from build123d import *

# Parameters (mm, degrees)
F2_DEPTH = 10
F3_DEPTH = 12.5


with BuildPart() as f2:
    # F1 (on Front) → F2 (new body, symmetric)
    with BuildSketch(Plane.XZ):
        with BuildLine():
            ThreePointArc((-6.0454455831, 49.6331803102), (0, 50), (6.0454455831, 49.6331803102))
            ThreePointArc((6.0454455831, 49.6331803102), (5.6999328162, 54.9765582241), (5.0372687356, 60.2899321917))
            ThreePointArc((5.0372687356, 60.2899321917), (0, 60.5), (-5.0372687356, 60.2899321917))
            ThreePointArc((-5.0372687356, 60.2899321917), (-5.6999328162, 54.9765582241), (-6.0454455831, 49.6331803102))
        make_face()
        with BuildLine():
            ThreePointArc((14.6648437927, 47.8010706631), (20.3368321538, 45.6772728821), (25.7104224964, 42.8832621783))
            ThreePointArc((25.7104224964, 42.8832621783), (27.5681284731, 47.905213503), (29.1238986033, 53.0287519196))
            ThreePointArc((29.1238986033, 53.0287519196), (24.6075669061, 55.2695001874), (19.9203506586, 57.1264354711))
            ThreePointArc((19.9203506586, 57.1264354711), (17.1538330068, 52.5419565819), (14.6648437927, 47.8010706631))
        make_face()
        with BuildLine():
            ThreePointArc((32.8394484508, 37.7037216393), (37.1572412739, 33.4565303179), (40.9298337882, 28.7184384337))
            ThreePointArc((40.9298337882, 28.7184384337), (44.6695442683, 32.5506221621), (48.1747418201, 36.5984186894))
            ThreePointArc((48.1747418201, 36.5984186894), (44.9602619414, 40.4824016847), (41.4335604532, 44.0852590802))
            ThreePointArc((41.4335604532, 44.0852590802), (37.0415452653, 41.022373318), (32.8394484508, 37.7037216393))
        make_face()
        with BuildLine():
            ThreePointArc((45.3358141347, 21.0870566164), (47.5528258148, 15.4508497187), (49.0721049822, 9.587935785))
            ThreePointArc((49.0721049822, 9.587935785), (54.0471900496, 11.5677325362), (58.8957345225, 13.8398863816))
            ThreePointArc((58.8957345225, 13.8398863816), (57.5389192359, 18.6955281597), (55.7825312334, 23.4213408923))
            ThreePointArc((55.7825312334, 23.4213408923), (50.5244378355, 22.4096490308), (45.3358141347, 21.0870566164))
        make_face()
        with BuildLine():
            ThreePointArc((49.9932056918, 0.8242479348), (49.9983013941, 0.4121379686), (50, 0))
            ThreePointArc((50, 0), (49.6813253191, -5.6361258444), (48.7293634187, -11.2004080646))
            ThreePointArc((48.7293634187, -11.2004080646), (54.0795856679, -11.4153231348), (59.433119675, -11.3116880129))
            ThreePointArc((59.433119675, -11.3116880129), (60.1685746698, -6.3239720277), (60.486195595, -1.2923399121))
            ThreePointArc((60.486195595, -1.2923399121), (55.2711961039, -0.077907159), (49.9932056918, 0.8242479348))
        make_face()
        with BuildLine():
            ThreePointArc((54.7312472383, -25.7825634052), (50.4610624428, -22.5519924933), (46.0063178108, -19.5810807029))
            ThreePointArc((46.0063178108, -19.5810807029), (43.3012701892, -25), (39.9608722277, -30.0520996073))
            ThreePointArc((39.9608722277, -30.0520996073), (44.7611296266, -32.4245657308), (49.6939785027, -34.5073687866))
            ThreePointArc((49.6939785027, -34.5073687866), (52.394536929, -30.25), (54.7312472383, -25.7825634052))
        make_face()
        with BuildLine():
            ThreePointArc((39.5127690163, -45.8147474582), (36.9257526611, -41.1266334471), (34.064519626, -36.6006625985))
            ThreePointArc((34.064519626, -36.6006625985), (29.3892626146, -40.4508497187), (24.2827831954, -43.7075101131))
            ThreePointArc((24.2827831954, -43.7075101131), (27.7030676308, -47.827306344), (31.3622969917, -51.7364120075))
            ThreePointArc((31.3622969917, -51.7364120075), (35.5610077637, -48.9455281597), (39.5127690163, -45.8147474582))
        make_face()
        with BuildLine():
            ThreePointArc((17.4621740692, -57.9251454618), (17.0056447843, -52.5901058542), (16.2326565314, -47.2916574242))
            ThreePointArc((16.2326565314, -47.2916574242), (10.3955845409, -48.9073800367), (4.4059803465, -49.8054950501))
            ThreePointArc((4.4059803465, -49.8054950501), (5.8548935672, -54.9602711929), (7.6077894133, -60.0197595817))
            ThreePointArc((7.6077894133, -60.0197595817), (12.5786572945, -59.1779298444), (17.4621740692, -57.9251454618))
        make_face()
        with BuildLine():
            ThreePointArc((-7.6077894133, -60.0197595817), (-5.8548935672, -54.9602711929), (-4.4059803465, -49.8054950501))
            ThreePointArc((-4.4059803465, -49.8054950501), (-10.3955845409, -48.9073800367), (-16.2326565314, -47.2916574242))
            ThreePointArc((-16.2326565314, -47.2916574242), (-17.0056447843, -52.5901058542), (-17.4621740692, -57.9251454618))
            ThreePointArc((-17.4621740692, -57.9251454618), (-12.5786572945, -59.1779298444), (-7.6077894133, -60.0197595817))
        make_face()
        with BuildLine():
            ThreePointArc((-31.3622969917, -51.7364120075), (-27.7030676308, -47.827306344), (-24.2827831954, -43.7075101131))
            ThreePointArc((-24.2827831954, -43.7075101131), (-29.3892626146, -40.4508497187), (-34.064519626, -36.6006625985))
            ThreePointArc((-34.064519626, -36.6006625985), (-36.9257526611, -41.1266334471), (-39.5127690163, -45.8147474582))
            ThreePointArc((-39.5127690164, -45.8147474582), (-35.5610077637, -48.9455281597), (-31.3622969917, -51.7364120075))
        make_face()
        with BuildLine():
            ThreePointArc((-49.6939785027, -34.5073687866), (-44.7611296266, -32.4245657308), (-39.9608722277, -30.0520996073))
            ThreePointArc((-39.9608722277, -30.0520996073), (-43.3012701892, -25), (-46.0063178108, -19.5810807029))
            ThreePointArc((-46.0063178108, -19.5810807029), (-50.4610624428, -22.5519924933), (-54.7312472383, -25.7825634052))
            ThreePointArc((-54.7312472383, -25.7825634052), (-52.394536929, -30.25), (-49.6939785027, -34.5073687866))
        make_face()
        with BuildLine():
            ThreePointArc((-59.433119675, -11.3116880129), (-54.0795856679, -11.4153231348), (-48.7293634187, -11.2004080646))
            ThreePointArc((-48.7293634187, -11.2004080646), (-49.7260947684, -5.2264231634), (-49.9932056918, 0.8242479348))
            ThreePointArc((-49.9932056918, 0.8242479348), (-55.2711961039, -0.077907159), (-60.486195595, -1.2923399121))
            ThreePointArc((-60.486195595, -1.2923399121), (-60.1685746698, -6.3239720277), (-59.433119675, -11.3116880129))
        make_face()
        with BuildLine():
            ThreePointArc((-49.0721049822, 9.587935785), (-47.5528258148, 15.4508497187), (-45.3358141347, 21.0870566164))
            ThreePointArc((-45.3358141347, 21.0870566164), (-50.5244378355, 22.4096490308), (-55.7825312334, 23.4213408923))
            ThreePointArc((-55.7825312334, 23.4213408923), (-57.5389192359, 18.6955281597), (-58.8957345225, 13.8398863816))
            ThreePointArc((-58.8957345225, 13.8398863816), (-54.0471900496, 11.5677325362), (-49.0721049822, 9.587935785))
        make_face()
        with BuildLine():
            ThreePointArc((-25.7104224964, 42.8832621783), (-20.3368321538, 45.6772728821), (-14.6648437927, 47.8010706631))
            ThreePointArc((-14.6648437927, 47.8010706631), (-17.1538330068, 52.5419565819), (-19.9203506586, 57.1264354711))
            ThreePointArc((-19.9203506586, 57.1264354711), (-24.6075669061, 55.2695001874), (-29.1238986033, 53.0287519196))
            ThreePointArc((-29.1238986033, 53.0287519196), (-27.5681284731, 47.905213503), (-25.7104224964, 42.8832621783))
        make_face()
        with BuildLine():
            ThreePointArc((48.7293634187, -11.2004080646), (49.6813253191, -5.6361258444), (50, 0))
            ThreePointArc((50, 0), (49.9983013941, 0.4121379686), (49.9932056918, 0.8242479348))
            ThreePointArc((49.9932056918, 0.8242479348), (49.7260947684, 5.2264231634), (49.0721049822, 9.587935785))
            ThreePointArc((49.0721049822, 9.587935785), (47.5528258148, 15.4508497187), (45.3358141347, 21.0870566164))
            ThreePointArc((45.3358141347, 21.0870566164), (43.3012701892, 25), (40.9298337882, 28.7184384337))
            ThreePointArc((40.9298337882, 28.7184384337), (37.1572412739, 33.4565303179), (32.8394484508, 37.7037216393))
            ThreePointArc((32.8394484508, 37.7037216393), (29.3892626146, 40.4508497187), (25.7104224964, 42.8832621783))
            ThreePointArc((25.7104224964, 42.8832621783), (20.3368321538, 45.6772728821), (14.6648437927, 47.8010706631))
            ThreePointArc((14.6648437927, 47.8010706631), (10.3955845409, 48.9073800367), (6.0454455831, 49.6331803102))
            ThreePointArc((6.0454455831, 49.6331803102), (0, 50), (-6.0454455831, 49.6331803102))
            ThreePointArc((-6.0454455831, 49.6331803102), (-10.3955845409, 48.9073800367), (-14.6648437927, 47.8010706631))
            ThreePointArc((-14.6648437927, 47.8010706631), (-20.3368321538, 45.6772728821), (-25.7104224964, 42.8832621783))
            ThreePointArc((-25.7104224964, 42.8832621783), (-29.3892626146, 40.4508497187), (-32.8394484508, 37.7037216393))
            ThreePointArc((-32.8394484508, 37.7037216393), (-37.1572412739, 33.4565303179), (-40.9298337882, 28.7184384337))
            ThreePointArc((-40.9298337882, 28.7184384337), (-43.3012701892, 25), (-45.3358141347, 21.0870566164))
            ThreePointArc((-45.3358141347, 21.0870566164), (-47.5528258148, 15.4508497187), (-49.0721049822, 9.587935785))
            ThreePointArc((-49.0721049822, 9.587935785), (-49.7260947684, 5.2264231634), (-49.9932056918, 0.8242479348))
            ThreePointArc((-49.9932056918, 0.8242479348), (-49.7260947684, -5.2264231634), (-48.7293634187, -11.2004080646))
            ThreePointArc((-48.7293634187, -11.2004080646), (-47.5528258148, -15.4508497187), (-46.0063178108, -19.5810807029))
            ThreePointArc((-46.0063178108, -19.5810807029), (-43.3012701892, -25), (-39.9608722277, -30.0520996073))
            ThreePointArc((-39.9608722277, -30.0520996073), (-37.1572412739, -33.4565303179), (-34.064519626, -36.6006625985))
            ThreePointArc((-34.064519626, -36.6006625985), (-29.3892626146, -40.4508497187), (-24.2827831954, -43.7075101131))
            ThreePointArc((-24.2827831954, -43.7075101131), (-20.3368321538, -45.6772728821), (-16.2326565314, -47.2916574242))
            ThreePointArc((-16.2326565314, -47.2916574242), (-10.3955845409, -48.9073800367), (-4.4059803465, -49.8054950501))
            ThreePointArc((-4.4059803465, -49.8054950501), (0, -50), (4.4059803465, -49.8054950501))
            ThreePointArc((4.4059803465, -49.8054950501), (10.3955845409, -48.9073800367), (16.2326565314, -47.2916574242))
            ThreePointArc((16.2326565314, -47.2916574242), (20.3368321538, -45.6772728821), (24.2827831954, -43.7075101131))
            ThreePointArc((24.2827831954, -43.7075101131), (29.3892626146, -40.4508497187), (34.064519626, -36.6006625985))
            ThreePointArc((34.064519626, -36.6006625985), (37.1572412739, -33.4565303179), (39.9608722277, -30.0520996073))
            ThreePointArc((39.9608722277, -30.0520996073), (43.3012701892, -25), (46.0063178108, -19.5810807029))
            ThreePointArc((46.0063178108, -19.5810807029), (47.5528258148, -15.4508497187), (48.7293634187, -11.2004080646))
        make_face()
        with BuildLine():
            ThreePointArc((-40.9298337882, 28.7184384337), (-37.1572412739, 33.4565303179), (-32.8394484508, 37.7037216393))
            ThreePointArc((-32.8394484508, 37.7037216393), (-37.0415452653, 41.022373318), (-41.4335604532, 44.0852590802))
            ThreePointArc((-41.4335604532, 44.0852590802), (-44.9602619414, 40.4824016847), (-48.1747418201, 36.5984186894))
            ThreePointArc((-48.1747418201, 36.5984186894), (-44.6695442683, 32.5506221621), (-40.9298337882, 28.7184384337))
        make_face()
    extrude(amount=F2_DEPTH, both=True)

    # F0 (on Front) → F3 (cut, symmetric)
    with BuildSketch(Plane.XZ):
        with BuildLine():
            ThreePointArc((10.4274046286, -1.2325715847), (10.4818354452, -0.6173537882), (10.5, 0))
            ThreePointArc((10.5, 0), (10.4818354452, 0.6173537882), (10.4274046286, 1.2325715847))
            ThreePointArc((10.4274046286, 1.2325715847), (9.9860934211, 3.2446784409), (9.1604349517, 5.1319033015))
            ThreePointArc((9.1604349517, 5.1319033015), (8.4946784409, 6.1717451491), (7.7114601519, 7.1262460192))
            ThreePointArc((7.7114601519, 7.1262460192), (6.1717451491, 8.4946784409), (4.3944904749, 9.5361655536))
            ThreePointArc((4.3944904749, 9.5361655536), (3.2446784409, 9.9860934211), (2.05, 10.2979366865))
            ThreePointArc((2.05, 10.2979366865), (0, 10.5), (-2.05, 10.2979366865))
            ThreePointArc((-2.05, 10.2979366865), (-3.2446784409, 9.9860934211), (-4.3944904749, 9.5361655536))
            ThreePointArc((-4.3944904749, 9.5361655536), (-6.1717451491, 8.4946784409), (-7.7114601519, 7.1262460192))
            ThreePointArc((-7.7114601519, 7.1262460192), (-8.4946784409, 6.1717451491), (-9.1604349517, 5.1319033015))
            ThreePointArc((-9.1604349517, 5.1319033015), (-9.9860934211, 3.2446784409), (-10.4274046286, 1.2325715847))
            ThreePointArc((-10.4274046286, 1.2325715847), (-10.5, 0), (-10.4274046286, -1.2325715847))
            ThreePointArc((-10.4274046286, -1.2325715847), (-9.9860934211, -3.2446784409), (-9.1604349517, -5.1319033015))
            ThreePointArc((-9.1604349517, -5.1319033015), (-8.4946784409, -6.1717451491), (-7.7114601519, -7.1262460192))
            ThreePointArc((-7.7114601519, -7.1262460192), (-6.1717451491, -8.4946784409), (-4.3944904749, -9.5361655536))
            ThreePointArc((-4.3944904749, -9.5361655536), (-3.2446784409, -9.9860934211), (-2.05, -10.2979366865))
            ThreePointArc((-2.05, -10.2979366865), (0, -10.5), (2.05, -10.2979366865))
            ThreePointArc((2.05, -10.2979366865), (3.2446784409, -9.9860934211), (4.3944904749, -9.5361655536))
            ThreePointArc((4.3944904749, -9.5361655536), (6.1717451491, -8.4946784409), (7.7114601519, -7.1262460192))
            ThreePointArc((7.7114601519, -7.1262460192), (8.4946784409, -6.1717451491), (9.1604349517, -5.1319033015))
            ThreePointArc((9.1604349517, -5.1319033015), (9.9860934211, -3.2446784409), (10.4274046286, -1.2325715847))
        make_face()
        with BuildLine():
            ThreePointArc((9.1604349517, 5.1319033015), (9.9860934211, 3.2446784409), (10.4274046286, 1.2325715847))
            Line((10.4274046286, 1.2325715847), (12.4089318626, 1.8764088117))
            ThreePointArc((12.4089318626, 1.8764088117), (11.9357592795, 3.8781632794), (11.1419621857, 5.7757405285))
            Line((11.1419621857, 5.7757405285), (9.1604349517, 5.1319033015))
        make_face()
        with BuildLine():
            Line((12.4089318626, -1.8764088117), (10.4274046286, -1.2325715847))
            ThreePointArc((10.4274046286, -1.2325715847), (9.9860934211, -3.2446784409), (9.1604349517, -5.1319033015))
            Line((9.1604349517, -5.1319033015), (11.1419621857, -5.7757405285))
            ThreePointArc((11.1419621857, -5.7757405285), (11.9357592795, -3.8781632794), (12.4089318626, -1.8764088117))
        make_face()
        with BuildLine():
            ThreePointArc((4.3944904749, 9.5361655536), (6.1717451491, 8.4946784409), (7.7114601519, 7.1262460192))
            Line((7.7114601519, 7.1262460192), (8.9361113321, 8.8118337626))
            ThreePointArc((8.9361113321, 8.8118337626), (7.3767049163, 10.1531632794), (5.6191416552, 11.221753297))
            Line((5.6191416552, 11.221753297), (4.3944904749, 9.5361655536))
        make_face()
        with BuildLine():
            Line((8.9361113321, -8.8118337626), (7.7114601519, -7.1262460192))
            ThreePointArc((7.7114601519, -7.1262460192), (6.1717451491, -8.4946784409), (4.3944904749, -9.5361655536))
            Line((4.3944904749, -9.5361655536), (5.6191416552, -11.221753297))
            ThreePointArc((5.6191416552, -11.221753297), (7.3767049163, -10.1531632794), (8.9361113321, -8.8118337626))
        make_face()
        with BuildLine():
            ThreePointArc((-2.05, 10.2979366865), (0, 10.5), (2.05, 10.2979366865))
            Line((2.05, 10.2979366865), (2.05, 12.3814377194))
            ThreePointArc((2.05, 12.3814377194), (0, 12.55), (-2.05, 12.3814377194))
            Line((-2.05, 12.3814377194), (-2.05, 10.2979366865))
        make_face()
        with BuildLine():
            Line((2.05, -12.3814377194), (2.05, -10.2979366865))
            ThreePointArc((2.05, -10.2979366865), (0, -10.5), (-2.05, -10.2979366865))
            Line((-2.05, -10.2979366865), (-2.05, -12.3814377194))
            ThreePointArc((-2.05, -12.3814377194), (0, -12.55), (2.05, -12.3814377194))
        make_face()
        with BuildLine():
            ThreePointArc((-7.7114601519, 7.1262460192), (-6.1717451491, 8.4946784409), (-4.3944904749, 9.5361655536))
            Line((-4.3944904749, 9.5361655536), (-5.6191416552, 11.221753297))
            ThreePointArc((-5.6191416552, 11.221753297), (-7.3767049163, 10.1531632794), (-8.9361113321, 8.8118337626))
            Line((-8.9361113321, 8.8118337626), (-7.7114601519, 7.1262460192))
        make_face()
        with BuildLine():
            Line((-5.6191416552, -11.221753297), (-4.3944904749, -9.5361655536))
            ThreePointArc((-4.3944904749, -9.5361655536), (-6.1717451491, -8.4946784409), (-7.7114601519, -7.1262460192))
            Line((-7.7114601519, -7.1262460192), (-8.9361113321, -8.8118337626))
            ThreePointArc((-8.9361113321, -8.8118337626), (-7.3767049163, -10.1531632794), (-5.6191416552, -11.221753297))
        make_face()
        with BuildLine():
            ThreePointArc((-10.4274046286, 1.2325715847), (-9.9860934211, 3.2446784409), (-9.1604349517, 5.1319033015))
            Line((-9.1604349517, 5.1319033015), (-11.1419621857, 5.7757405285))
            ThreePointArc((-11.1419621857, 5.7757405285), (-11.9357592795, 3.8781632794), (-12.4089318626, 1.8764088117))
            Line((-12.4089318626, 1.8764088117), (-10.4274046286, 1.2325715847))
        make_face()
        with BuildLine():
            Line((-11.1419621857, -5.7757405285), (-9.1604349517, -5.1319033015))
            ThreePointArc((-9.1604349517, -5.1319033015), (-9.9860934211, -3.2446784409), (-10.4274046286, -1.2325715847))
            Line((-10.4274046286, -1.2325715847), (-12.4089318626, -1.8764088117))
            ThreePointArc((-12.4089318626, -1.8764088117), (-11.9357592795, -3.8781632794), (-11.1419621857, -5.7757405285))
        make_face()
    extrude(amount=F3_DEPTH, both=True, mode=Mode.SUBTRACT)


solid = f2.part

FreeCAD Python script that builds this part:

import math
import FreeCAD as App
import Part
import Sketcher
from FreeCAD import Vector
Q = App.Units.Quantity

doc = App.newDocument("Part")
params = doc.addObject("Spreadsheet::Sheet", "Params")
for row, (alias, value) in enumerate([
    ("sketch1_radius", "90 mm"),
    ("sketch1_radius2", "50 mm"),
    ("sketch1_radius3", "60.5 mm"),
    ("pad1_length", "20 mm"),
    ("sketch2_radius", "10.5 mm"),
    ("sketch2_radius2", "12.55 mm"),
    ("pocket1_length", "25 mm"),
], start=1):
    params.set(f"A{row}", alias)
    params.set(f"B{row}", "=" + value)
    params.setAlias(f"B{row}", alias)

body = doc.addObject("PartDesign::Body", "Body")

# Sketch on XZ plane
sketch1 = body.newObject("Sketcher::SketchObject", "Sketch")
sketch1.AttachmentSupport = (doc.getObject("XZ_Plane"), [""])
sketch1.MapMode = "FlatFace"
sketch1.addGeometry(Part.ArcOfCircle(Part.Circle(Vector(-84, 46, 0), Vector(0, 0, 1), 90), math.radians(2), math.radians(8.81)), False)
sketch1.addGeometry(Part.ArcOfCircle(Part.Circle(Vector(0, 0, 0), Vector(0, 0, 1), 60), math.radians(85.22), math.radians(94.78)), False)
sketch1.addGeometry(Part.ArcOfCircle(Part.Circle(Vector(84, 46, 0), Vector(0, 0, 1), 90), math.radians(171.19), math.radians(178)), False)
sketch1.addGeometry(Part.ArcOfCircle(Part.Circle(Vector(0, 0, 0), Vector(0, 0, 1), 50), math.radians(96.94), math.radians(107.06)), False)
sketch1.addGeometry(Part.ArcOfCircle(Part.Circle(Vector(-96, 8, 0), Vector(0, 0, 1), 90), math.radians(26), math.radians(32.81)), False)
sketch1.addGeometry(Part.ArcOfCircle(Part.Circle(Vector(0, 0, 0), Vector(0, 0, 1), 60), math.radians(109.22), math.radians(118.78)), False)
sketch1.addGeometry(Part.ArcOfCircle(Part.Circle(Vector(58, 77, 0), Vector(0, 0, 1), 90), math.radians(-164.81), math.radians(-158)), False)
sketch1.addGeometry(Part.ArcOfCircle(Part.Circle(Vector(0, 0, 0), Vector(0, 0, 1), 50), math.radians(120.94), math.radians(131.06)), False)
sketch1.addGeometry(Part.ArcOfCircle(Part.Circle(Vector(-91, -31, 0), Vector(0, 0, 1), 90), math.radians(50), math.radians(56.81)), False)
sketch1.addGeometry(Part.ArcOfCircle(Part.Circle(Vector(0, 0, 0), Vector(0, 0, 1), 60), math.radians(133.22), math.radians(142.78)), False)
sketch1.addGeometry(Part.ArcOfCircle(Part.Circle(Vector(22, 93, 0), Vector(0, 0, 1), 90), math.radians(-140.81), math.radians(-134)), False)
sketch1.addGeometry(Part.ArcOfCircle(Part.Circle(Vector(0, 0, 0), Vector(0, 0, 1), 50), math.radians(144.94), math.radians(155.06)), False)
sketch1.addGeometry(Part.ArcOfCircle(Part.Circle(Vector(-70, -65, 0), Vector(0, 0, 1), 90), math.radians(74), math.radians(80.81)), False)
sketch1.addGeometry(Part.ArcOfCircle(Part.Circle(Vector(0, 0, 0), Vector(0, 0, 1), 60), math.radians(157.22), math.radians(166.78)), False)
sketch1.addGeometry(Part.ArcOfCircle(Part.Circle(Vector(-18, 94, 0), Vector(0, 0, 1), 90), math.radians(-116.81), math.radians(-110)), False)
sketch1.addGeometry(Part.ArcOfCircle(Part.Circle(Vector(0, 0, 0), Vector(0, 0, 1), 50), math.radians(168.94), math.radians(179.06)), False)
sketch1.addGeometry(Part.ArcOfCircle(Part.Circle(Vector(-37, -88, 0), Vector(0, 0, 1), 90), math.radians(98), math.radians(104.81)), False)
sketch1.addGeometry(Part.ArcOfCircle(Part.Circle(Vector(0, 0, 0), Vector(0, 0, 1), 61), math.radians(-178.78), math.radians(-169.22)), False)
sketch1.addGeometry(Part.ArcOfCircle(Part.Circle(Vector(-55, 79, 0), Vector(0, 0, 1), 90), math.radians(-92.81), math.radians(-86)), False)
sketch1.addGeometry(Part.ArcOfCircle(Part.Circle(Vector(0, 0, 0), Vector(0, 0, 1), 50), math.radians(-167.06), math.radians(-156.94)), False)
sketch1.addGeometry(Part.ArcOfCircle(Part.Circle(Vector(2, -96, 0), Vector(0, 0, 1), 90), math.radians(122), math.radians(128.81)), False)
sketch1.addGeometry(Part.ArcOfCircle(Part.Circle(Vector(0, 0, 0), Vector(0, 0, 1), 60), math.radians(-154.78), math.radians(-145.22)), False)
sketch1.addGeometry(Part.ArcOfCircle(Part.Circle(Vector(-82, 49, 0), Vector(0, 0, 1), 90), math.radians(-68.81), math.radians(-62)), False)
sketch1.addGeometry(Part.ArcOfCircle(Part.Circle(Vector(0, 0, 0), Vector(0, 0, 1), 50), math.radians(-143.06), math.radians(-132.94)), False)
sketch1.addGeometry(Part.ArcOfCircle(Part.Circle(Vector(41, -87, 0), Vector(0, 0, 1), 90), math.radians(146), math.radians(152.81)), False)
sketch1.addGeometry(Part.ArcOfCircle(Part.Circle(Vector(0, 0, 0), Vector(0, 0, 1), 61), math.radians(-130.78), math.radians(-121.22)), False)
sketch1.addGeometry(Part.ArcOfCircle(Part.Circle(Vector(-95, 12, 0), Vector(0, 0, 1), 90), math.radians(-44.81), math.radians(-38)), False)
sketch1.addGeometry(Part.ArcOfCircle(Part.Circle(Vector(0, 0, 0), Vector(0, 0, 1), 50), math.radians(-119.06), math.radians(-108.94)), False)
sketch1.addGeometry(Part.ArcOfCircle(Part.Circle(Vector(72, -63, 0), Vector(0, 0, 1), 90), math.radians(170), math.radians(176.81)), False)
sketch1.addGeometry(Part.ArcOfCircle(Part.Circle(Vector(0, 0, 0), Vector(0, 0, 1), 60), math.radians(-106.78), math.radians(-97.22)), False)
sketch1.addGeometry(Part.ArcOfCircle(Part.Circle(Vector(-92, -28, 0), Vector(0, 0, 1), 90), math.radians(-20.81), math.radians(-14)), False)
sketch1.addGeometry(Part.ArcOfCircle(Part.Circle(Vector(0, 0, 0), Vector(0, 0, 1), 50), math.radians(-95.06), math.radians(-84.94)), False)
sketch1.addGeometry(Part.ArcOfCircle(Part.Circle(Vector(92, -28, 0), Vector(0, 0, 1), 90), math.radians(-166), math.radians(-159.19)), False)
sketch1.addGeometry(Part.ArcOfCircle(Part.Circle(Vector(0, 0, 0), Vector(0, 0, 1), 60), math.radians(-82.78), math.radians(-73.22)), False)
sketch1.addGeometry(Part.ArcOfCircle(Part.Circle(Vector(-72, -63, 0), Vector(0, 0, 1), 90), math.radians(3.19), math.radians(10)), False)
sketch1.addGeometry(Part.ArcOfCircle(Part.Circle(Vector(0, 0, 0), Vector(0, 0, 1), 50), math.radians(-71.06), math.radians(-60.94)), False)
sketch1.addGeometry(Part.ArcOfCircle(Part.Circle(Vector(95, 12, 0), Vector(0, 0, 1), 90), math.radians(-142), math.radians(-135.19)), False)
sketch1.addGeometry(Part.ArcOfCircle(Part.Circle(Vector(0, 0, 0), Vector(0, 0, 1), 60), math.radians(-58.78), math.radians(-49.22)), False)
sketch1.addGeometry(Part.ArcOfCircle(Part.Circle(Vector(-41, -87, 0), Vector(0, 0, 1), 90), math.radians(27.19), math.radians(34)), False)
sketch1.addGeometry(Part.ArcOfCircle(Part.Circle(Vector(0, 0, 0), Vector(0, 0, 1), 50), math.radians(-47.06), math.radians(-36.94)), False)
sketch1.addGeometry(Part.ArcOfCircle(Part.Circle(Vector(82, 49, 0), Vector(0, 0, 1), 90), math.radians(-118), math.radians(-111.19)), False)
sketch1.addGeometry(Part.ArcOfCircle(Part.Circle(Vector(0, 0, 0), Vector(0, 0, 1), 60), math.radians(-34.78), math.radians(-25.22)), False)
sketch1.addGeometry(Part.ArcOfCircle(Part.Circle(Vector(-2, -96, 0), Vector(0, 0, 1), 90), math.radians(51.19), math.radians(58)), False)
sketch1.addGeometry(Part.ArcOfCircle(Part.Circle(Vector(0, 0, 0), Vector(0, 0, 1), 50), math.radians(-23.06), math.radians(-12.94)), False)
sketch1.addGeometry(Part.ArcOfCircle(Part.Circle(Vector(55, 79, 0), Vector(0, 0, 1), 90), math.radians(-94), math.radians(-87.19)), False)
sketch1.addGeometry(Part.ArcOfCircle(Part.Circle(Vector(0, 0, 0), Vector(0, 0, 1), 61), math.radians(-10.78), math.radians(-1.22)), False)
sketch1.addGeometry(Part.ArcOfCircle(Part.Circle(Vector(37, -88, 0), Vector(0, 0, 1), 90), math.radians(75.19), math.radians(82)), False)
sketch1.addGeometry(Part.ArcOfCircle(Part.Circle(Vector(0, 0, 0), Vector(0, 0, 1), 50), math.radians(0.94), math.radians(11.06)), False)
sketch1.addGeometry(Part.ArcOfCircle(Part.Circle(Vector(18, 94, 0), Vector(0, 0, 1), 90), math.radians(-70), math.radians(-63.19)), False)
sketch1.addGeometry(Part.ArcOfCircle(Part.Circle(Vector(0, 0, 0), Vector(0, 0, 1), 60), math.radians(13.22), math.radians(22.78)), False)
sketch1.addGeometry(Part.ArcOfCircle(Part.Circle(Vector(70, -65, 0), Vector(0, 0, 1), 90), math.radians(99.19), math.radians(106)), False)
sketch1.addGeometry(Part.ArcOfCircle(Part.Circle(Vector(0, 0, 0), Vector(0, 0, 1), 50), math.radians(24.94), math.radians(35.06)), False)
sketch1.addGeometry(Part.ArcOfCircle(Part.Circle(Vector(-22, 93, 0), Vector(0, 0, 1), 90), math.radians(-46), math.radians(-39.19)), False)
sketch1.addGeometry(Part.ArcOfCircle(Part.Circle(Vector(0, 0, 0), Vector(0, 0, 1), 60), math.radians(37.22), math.radians(46.78)), False)
sketch1.addGeometry(Part.ArcOfCircle(Part.Circle(Vector(91, -31, 0), Vector(0, 0, 1), 90), math.radians(123.19), math.radians(130)), False)
sketch1.addGeometry(Part.ArcOfCircle(Part.Circle(Vector(0, 0, 0), Vector(0, 0, 1), 50), math.radians(48.94), math.radians(59.06)), False)
sketch1.addGeometry(Part.ArcOfCircle(Part.Circle(Vector(-58, 77, 0), Vector(0, 0, 1), 90), math.radians(-22), math.radians(-15.19)), False)
sketch1.addGeometry(Part.ArcOfCircle(Part.Circle(Vector(0, 0, 0), Vector(0, 0, 1), 60), math.radians(61.22), math.radians(70.78)), False)
sketch1.addGeometry(Part.ArcOfCircle(Part.Circle(Vector(96, 8, 0), Vector(0, 0, 1), 90), math.radians(147.19), math.radians(154)), False)
sketch1.addGeometry(Part.ArcOfCircle(Part.Circle(Vector(0, 0, 0), Vector(0, 0, 1), 50), math.radians(72.94), math.radians(83.06)), False)
sketch1.addConstraint(Sketcher.Constraint("Coincident", 0, 2, 1, 1))
sketch1.addConstraint(Sketcher.Constraint("Coincident", 1, 2, 2, 1))
sketch1.addConstraint(Sketcher.Constraint("Coincident", 2, 2, 3, 1))
sketch1.addConstraint(Sketcher.Constraint("Coincident", 3, 2, 4, 1))
sketch1.addConstraint(Sketcher.Constraint("Coincident", 4, 2, 5, 1))
sketch1.addConstraint(Sketcher.Constraint("Coincident", 5, 2, 6, 1))
sketch1.addConstraint(Sketcher.Constraint("Coincident", 6, 2, 7, 1))
sketch1.addConstraint(Sketcher.Constraint("Coincident", 7, 2, 8, 1))
sketch1.addConstraint(Sketcher.Constraint("Coincident", 8, 2, 9, 1))
sketch1.addConstraint(Sketcher.Constraint("Coincident", 9, 2, 10, 1))
sketch1.addConstraint(Sketcher.Constraint("Coincident", 10, 2, 11, 1))
sketch1.addConstraint(Sketcher.Constraint("Coincident", 11, 2, 12, 1))
sketch1.addConstraint(Sketcher.Constraint("Coincident", 12, 2, 13, 1))
sketch1.addConstraint(Sketcher.Constraint("Coincident", 13, 2, 14, 1))
sketch1.addConstraint(Sketcher.Constraint("Coincident", 14, 2, 15, 1))
sketch1.addConstraint(Sketcher.Constraint("Coincident", 15, 2, 16, 1))
sketch1.addConstraint(Sketcher.Constraint("Coincident", 16, 2, 17, 1))
sketch1.addConstraint(Sketcher.Constraint("Coincident", 17, 2, 18, 1))
sketch1.addConstraint(Sketcher.Constraint("Coincident", 18, 2, 19, 1))
sketch1.addConstraint(Sketcher.Constraint("Coincident", 19, 2, 20, 1))
sketch1.addConstraint(Sketcher.Constraint("Coincident", 20, 2, 21, 1))
sketch1.addConstraint(Sketcher.Constraint("Coincident", 21, 2, 22, 1))
sketch1.addConstraint(Sketcher.Constraint("Coincident", 22, 2, 23, 1))
sketch1.addConstraint(Sketcher.Constraint("Coincident", 23, 2, 24, 1))
sketch1.addConstraint(Sketcher.Constraint("Coincident", 24, 2, 25, 1))
sketch1.addConstraint(Sketcher.Constraint("Coincident", 25, 2, 26, 1))
sketch1.addConstraint(Sketcher.Constraint("Coincident", 26, 2, 27, 1))
sketch1.addConstraint(Sketcher.Constraint("Coincident", 27, 2, 28, 1))
sketch1.addConstraint(Sketcher.Constraint("Coincident", 28, 2, 29, 1))
sketch1.addConstraint(Sketcher.Constraint("Coincident", 29, 2, 30, 1))
sketch1.addConstraint(Sketcher.Constraint("Coincident", 30, 2, 31, 1))
sketch1.addConstraint(Sketcher.Constraint("Coincident", 31, 2, 32, 1))
sketch1.addConstraint(Sketcher.Constraint("Coincident", 32, 2, 33, 1))
sketch1.addConstraint(Sketcher.Constraint("Coincident", 33, 2, 34, 1))
sketch1.addConstraint(Sketcher.Constraint("Coincident", 34, 2, 35, 1))
sketch1.addConstraint(Sketcher.Constraint("Coincident", 35, 2, 36, 1))
sketch1.addConstraint(Sketcher.Constraint("Coincident", 36, 2, 37, 1))
sketch1.addConstraint(Sketcher.Constraint("Coincident", 37, 2, 38, 1))
sketch1.addConstraint(Sketcher.Constraint("Coincident", 38, 2, 39, 1))
sketch1.addConstraint(Sketcher.Constraint("Coincident", 39, 2, 40, 1))
sketch1.addConstraint(Sketcher.Constraint("Coincident", 40, 2, 41, 1))
sketch1.addConstraint(Sketcher.Constraint("Coincident", 41, 2, 42, 1))
sketch1.addConstraint(Sketcher.Constraint("Coincident", 42, 2, 43, 1))
sketch1.addConstraint(Sketcher.Constraint("Coincident", 43, 2, 44, 1))
sketch1.addConstraint(Sketcher.Constraint("Coincident", 44, 2, 45, 1))
sketch1.addConstraint(Sketcher.Constraint("Coincident", 45, 2, 46, 1))
sketch1.addConstraint(Sketcher.Constraint("Coincident", 46, 2, 47, 1))
sketch1.addConstraint(Sketcher.Constraint("Coincident", 47, 2, 48, 1))
sketch1.addConstraint(Sketcher.Constraint("Coincident", 48, 2, 49, 1))
sketch1.addConstraint(Sketcher.Constraint("Coincident", 49, 2, 50, 1))
sketch1.addConstraint(Sketcher.Constraint("Coincident", 50, 2, 51, 1))
sketch1.addConstraint(Sketcher.Constraint("Coincident", 51, 2, 52, 1))
sketch1.addConstraint(Sketcher.Constraint("Coincident", 52, 2, 53, 1))
sketch1.addConstraint(Sketcher.Constraint("Coincident", 53, 2, 54, 1))
sketch1.addConstraint(Sketcher.Constraint("Coincident", 54, 2, 55, 1))
sketch1.addConstraint(Sketcher.Constraint("Coincident", 55, 2, 56, 1))
sketch1.addConstraint(Sketcher.Constraint("Coincident", 56, 2, 57, 1))
sketch1.addConstraint(Sketcher.Constraint("Coincident", 57, 2, 58, 1))
sketch1.addConstraint(Sketcher.Constraint("Coincident", 58, 2, 59, 1))
sketch1.addConstraint(Sketcher.Constraint("Coincident", 59, 2, 0, 1))
sketch1.addConstraint(Sketcher.Constraint("Coincident", 1, 3, -1, 1))
sketch1.addConstraint(Sketcher.Constraint("Coincident", 3, 3, -1, 1))
sketch1.addConstraint(Sketcher.Constraint("Coincident", 5, 3, -1, 1))
sketch1.addConstraint(Sketcher.Constraint("Coincident", 7, 3, -1, 1))
sketch1.addConstraint(Sketcher.Constraint("Coincident", 9, 3, -1, 1))
sketch1.addConstraint(Sketcher.Constraint("Coincident", 11, 3, -1, 1))
sketch1.addConstraint(Sketcher.Constraint("Coincident", 13, 3, -1, 1))
sketch1.addConstraint(Sketcher.Constraint("Coincident", 15, 3, -1, 1))
sketch1.addConstraint(Sketcher.Constraint("Coincident", 17, 3, -1, 1))
sketch1.addConstraint(Sketcher.Constraint("Coincident", 19, 3, -1, 1))
sketch1.addConstraint(Sketcher.Constraint("Coincident", 21, 3, -1, 1))
sketch1.addConstraint(Sketcher.Constraint("Coincident", 23, 3, -1, 1))
sketch1.addConstraint(Sketcher.Constraint("Coincident", 25, 3, -1, 1))
sketch1.addConstraint(Sketcher.Constraint("Coincident", 27, 3, -1, 1))
sketch1.addConstraint(Sketcher.Constraint("Coincident", 29, 3, -1, 1))
sketch1.addConstraint(Sketcher.Constraint("Coincident", 31, 3, -1, 1))
sketch1.addConstraint(Sketcher.Constraint("Coincident", 33, 3, -1, 1))
sketch1.addConstraint(Sketcher.Constraint("Coincident", 35, 3, -1, 1))
sketch1.addConstraint(Sketcher.Constraint("Coincident", 37, 3, -1, 1))
sketch1.addConstraint(Sketcher.Constraint("Coincident", 39, 3, -1, 1))
sketch1.addConstraint(Sketcher.Constraint("Coincident", 41, 3, -1, 1))
sketch1.addConstraint(Sketcher.Constraint("Coincident", 43, 3, -1, 1))
sketch1.addConstraint(Sketcher.Constraint("Coincident", 45, 3, -1, 1))
sketch1.addConstraint(Sketcher.Constraint("Coincident", 47, 3, -1, 1))
sketch1.addConstraint(Sketcher.Constraint("Coincident", 49, 3, -1, 1))
sketch1.addConstraint(Sketcher.Constraint("Coincident", 51, 3, -1, 1))
sketch1.addConstraint(Sketcher.Constraint("Coincident", 53, 3, -1, 1))
sketch1.addConstraint(Sketcher.Constraint("Coincident", 55, 3, -1, 1))
sketch1.addConstraint(Sketcher.Constraint("Coincident", 57, 3, -1, 1))
sketch1.addConstraint(Sketcher.Constraint("Coincident", 59, 3, -1, 1))
sketch1.addConstraint(Sketcher.Constraint("Equal", 0, 2))
sketch1.addConstraint(Sketcher.Constraint("Equal", 2, 4))
sketch1.addConstraint(Sketcher.Constraint("Equal", 1, 5))
sketch1.addConstraint(Sketcher.Constraint("Equal", 4, 6))
sketch1.addConstraint(Sketcher.Constraint("Equal", 3, 7))
sketch1.addConstraint(Sketcher.Constraint("Equal", 6, 8))
sketch1.addConstraint(Sketcher.Constraint("Equal", 5, 9))
sketch1.addConstraint(Sketcher.Constraint("Equal", 8, 10))
sketch1.addConstraint(Sketcher.Constraint("Equal", 7, 11))
sketch1.addConstraint(Sketcher.Constraint("Equal", 10, 12))
sketch1.addConstraint(Sketcher.Constraint("Equal", 9, 13))
sketch1.addConstraint(Sketcher.Constraint("Equal", 12, 14))
sketch1.addConstraint(Sketcher.Constraint("Equal", 11, 15))
sketch1.addConstraint(Sketcher.Constraint("Equal", 14, 16))
sketch1.addConstraint(Sketcher.Constraint("Equal", 13, 17))
sketch1.addConstraint(Sketcher.Constraint("Equal", 16, 18))
sketch1.addConstraint(Sketcher.Constraint("Equal", 15, 19))
sketch1.addConstraint(Sketcher.Constraint("Equal", 18, 20))
sketch1.addConstraint(Sketcher.Constraint("Equal", 17, 21))
sketch1.addConstraint(Sketcher.Constraint("Equal", 20, 22))
sketch1.addConstraint(Sketcher.Constraint("Equal", 19, 23))
sketch1.addConstraint(Sketcher.Constraint("Equal", 22, 24))
sketch1.addConstraint(Sketcher.Constraint("Equal", 21, 25))
sketch1.addConstraint(Sketcher.Constraint("Equal", 24, 26))
sketch1.addConstraint(Sketcher.Constraint("Equal", 23, 27))
sketch1.addConstraint(Sketcher.Constraint("Equal", 26, 28))
sketch1.addConstraint(Sketcher.Constraint("Equal", 25, 29))
sketch1.addConstraint(Sketcher.Constraint("Equal", 28, 30))
sketch1.addConstraint(Sketcher.Constraint("Equal", 27, 31))
sketch1.addConstraint(Sketcher.Constraint("Equal", 30, 32))
sketch1.addConstraint(Sketcher.Constraint("Equal", 29, 33))
sketch1.addConstraint(Sketcher.Constraint("Equal", 32, 34))
sketch1.addConstraint(Sketcher.Constraint("Equal", 31, 35))
sketch1.addConstraint(Sketcher.Constraint("Equal", 34, 36))
sketch1.addConstraint(Sketcher.Constraint("Equal", 33, 37))
sketch1.addConstraint(Sketcher.Constraint("Equal", 36, 38))
sketch1.addConstraint(Sketcher.Constraint("Equal", 35, 39))
sketch1.addConstraint(Sketcher.Constraint("Equal", 38, 40))
sketch1.addConstraint(Sketcher.Constraint("Equal", 37, 41))
sketch1.addConstraint(Sketcher.Constraint("Equal", 40, 42))
sketch1.addConstraint(Sketcher.Constraint("Equal", 39, 43))
sketch1.addConstraint(Sketcher.Constraint("Equal", 42, 44))
sketch1.addConstraint(Sketcher.Constraint("Equal", 41, 45))
sketch1.addConstraint(Sketcher.Constraint("Equal", 44, 46))
sketch1.addConstraint(Sketcher.Constraint("Equal", 43, 47))
sketch1.addConstraint(Sketcher.Constraint("Equal", 46, 48))
sketch1.addConstraint(Sketcher.Constraint("Equal", 45, 49))
sketch1.addConstraint(Sketcher.Constraint("Equal", 48, 50))
sketch1.addConstraint(Sketcher.Constraint("Equal", 47, 51))
sketch1.addConstraint(Sketcher.Constraint("Equal", 50, 52))
sketch1.addConstraint(Sketcher.Constraint("Equal", 49, 53))
sketch1.addConstraint(Sketcher.Constraint("Equal", 52, 54))
sketch1.addConstraint(Sketcher.Constraint("Equal", 51, 55))
sketch1.addConstraint(Sketcher.Constraint("Equal", 54, 56))
sketch1.addConstraint(Sketcher.Constraint("Equal", 53, 57))
sketch1.addConstraint(Sketcher.Constraint("Equal", 56, 58))
sketch1.addConstraint(Sketcher.Constraint("Equal", 55, 59))
sketch1.addConstraint(Sketcher.Constraint("Symmetric", 0, 3, 2, 3, -2))
sketch1.addConstraint(Sketcher.Constraint("Symmetric", 30, 3, 32, 3, -2))
sketch1.addConstraint(Sketcher.Constraint("Symmetric", 28, 3, 34, 3, -2))
sketch1.addConstraint(Sketcher.Constraint("Symmetric", 26, 3, 36, 3, -2))
sketch1.addConstraint(Sketcher.Constraint("Symmetric", 24, 3, 38, 3, -2))
sketch1.addConstraint(Sketcher.Constraint("Symmetric", 22, 3, 40, 3, -2))
sketch1.addConstraint(Sketcher.Constraint("Symmetric", 20, 3, 42, 3, -2))
sketch1.addConstraint(Sketcher.Constraint("Symmetric", 18, 3, 44, 3, -2))
sketch1.addConstraint(Sketcher.Constraint("Symmetric", 16, 3, 46, 3, -2))
sketch1.addConstraint(Sketcher.Constraint("Symmetric", 14, 3, 48, 3, -2))
sketch1.addConstraint(Sketcher.Constraint("Symmetric", 12, 3, 50, 3, -2))
sketch1.addConstraint(Sketcher.Constraint("Symmetric", 10, 3, 52, 3, -2))
sketch1.addConstraint(Sketcher.Constraint("Symmetric", 8, 3, 54, 3, -2))
sketch1.addConstraint(Sketcher.Constraint("Symmetric", 6, 3, 56, 3, -2))
sketch1.addConstraint(Sketcher.Constraint("Symmetric", 4, 3, 58, 3, -2))
sketch1.addConstraint(Sketcher.Constraint("Radius", 0, Q("90 mm")))
sketch1.addConstraint(Sketcher.Constraint("Radius", 3, Q("50 mm")))
sketch1.addConstraint(Sketcher.Constraint("Radius", 1, Q("60.5 mm")))
sketch1.addConstraint(Sketcher.Constraint("DistanceX", 0, 3, -1, 1, Q("83.9 mm")))
sketch1.addConstraint(Sketcher.Constraint("DistanceY", -1, 1, 0, 3, Q("46.5 mm")))
sketch1.addConstraint(Sketcher.Constraint("DistanceX", 5, 2, -1, 1, Q("29.123899 mm")))
sketch1.addConstraint(Sketcher.Constraint("DistanceY", 22, 2, -1, 1, Q("30.0521 mm")))
sketch1.addConstraint(Sketcher.Constraint("DistanceY", -1, 1, 4, 3, Q("8.354659 mm")))
sketch1.addConstraint(Sketcher.Constraint("DistanceX", -1, 1, 6, 3, Q("57.73321 mm")))
sketch1.addConstraint(Sketcher.Constraint("DistanceY", 12, 3, -1, 1, Q("65.424351 mm")))
sketch1.addConstraint(Sketcher.Constraint("DistanceY", -1, 1, 14, 3, Q("94.162932 mm")))
sketch1.addConstraint(Sketcher.Constraint("DistanceX", 16, 3, -1, 1, Q("37.47533 mm")))
sketch1.addConstraint(Sketcher.Constraint("DistanceY", 16, 3, -1, 1, Q("88.300961 mm")))
sketch1.addConstraint(Sketcher.Constraint("DistanceX", -1, 1, 20, 3, Q("1.679819 mm")))
sketch1.addConstraint(Sketcher.Constraint("DistanceY", 20, 3, -1, 1, Q("95.909531 mm")))
sketch1.addConstraint(Sketcher.Constraint("DistanceX", 22, 3, -1, 1, Q("82.220181 mm")))
sketch1.addConstraint(Sketcher.Constraint("DistanceX", -1, 1, 24, 3, Q("40.544512 mm")))
sketch1.addConstraint(Sketcher.Constraint("DistanceX", 26, 3, -1, 1, Q("95.20854 mm")))
sketch1.addConstraint(Sketcher.Constraint("DistanceX", -1, 1, 28, 3, Q("72.39869 mm")))
sketch1.addConstraint(Sketcher.Constraint("DistanceY", -1, 1, 3, 2, Q("47.801071 mm")))
sketch1.addConstraint(Sketcher.Constraint("DistanceX", 7, 2, -1, 1, Q("32.839448 mm")))
sketch1.addConstraint(Sketcher.Constraint("DistanceX", 9, 2, -1, 1, Q("48.174742 mm")))
sketch1.addConstraint(Sketcher.Constraint("DistanceY", -1, 1, 12, 2, Q("23.421341 mm")))
sketch1.addConstraint(Sketcher.Constraint("DistanceX", 17, 2, -1, 1, Q("59.43312 mm")))
sketch1.addConstraint(Sketcher.Constraint("DistanceY", 18, 2, -1, 1, Q("11.200408 mm")))
sketch1.addConstraint(Sketcher.Constraint("DistanceX", 23, 2, -1, 1, Q("34.06452 mm")))
sketch1.addConstraint(Sketcher.Constraint("DistanceY", 26, 2, -1, 1, Q("43.70751 mm")))
sketch1.addConstraint(Sketcher.Constraint("DistanceX", 29, 2, -1, 1, Q("7.607789 mm")))
sketch1.addConstraint(Sketcher.Constraint("DistanceX", 30, 2, -1, 1, Q("4.40598 mm")))
sketch1.addConstraint(Sketcher.Constraint("DistanceX", 8, 3, -1, 1, Q("90.696292 mm")))
sketch1.addConstraint(Sketcher.Constraint("DistanceX", -1, 1, 10, 3, Q("21.583823 mm")))
sketch1.addConstraint(Sketcher.Constraint("DistanceX", 14, 3, -1, 1, Q("18.297602 mm")))
sketch1.addConstraint(Sketcher.Constraint("DistanceY", 28, 3, -1, 1, Q("62.927654 mm")))
sketch1.setExpression("Constraints[162]", "Params.sketch1_radius")
sketch1.setExpression("Constraints[163]", "Params.sketch1_radius2")
sketch1.setExpression("Constraints[164]", "Params.sketch1_radius3")
pad1 = body.newObject("PartDesign::Pad", "Pad")
pad1.Profile = sketch1
pad1.setExpression("Length", "Params.pad1_length")
pad1.Midplane = True

# Sketch on XZ plane
sketch2 = body.newObject("Sketcher::SketchObject", "Sketch001")
sketch2.AttachmentSupport = (doc.getObject("XZ_Plane"), [""])
sketch2.MapMode = "FlatFace"
sketch2.addGeometry(Part.ArcOfCircle(Part.Circle(Vector(0, 0, 0), Vector(0, 0, 1), 10.5), math.radians(-6.74), math.radians(0)), False)
sketch2.addGeometry(Part.ArcOfCircle(Part.Circle(Vector(0, 0, 0), Vector(0, 0, 1), 10.5), math.radians(0), math.radians(6.74)), False)
sketch2.addGeometry(Part.LineSegment(Vector(10.4, 1.2, 0), Vector(12.4, 1.9, 0)), False)
sketch2.addGeometry(Part.ArcOfCircle(Part.Circle(Vector(0, 0, 0), Vector(0, 0, 1), 12.6), math.radians(8.6), math.radians(27.4)), False)
sketch2.addGeometry(Part.LineSegment(Vector(11.1, 5.8, 0), Vector(9.2, 5.1, 0)), False)
sketch2.addGeometry(Part.ArcOfCircle(Part.Circle(Vector(0, 0, 0), Vector(0, 0, 1), 10.5), math.radians(29.26), math.radians(42.74)), False)
sketch2.addGeometry(Part.LineSegment(Vector(7.7, 7.1, 0), Vector(8.9, 8.8, 0)), False)
sketch2.addGeometry(Part.ArcOfCircle(Part.Circle(Vector(0, 0, 0), Vector(0, 0, 1), 12.5), math.radians(44.6), math.radians(63.4)), False)
sketch2.addGeometry(Part.LineSegment(Vector(5.6, 11.2, 0), Vector(4.4, 9.5, 0)), False)
sketch2.addGeometry(Part.ArcOfCircle(Part.Circle(Vector(0, 0, 0), Vector(0, 0, 1), 10.5), math.radians(65.26), math.radians(78.74)), False)
sketch2.addGeometry(Part.LineSegment(Vector(2, 10.3, 0), Vector(2, 12.4, 0)), False)
sketch2.addGeometry(Part.ArcOfCircle(Part.Circle(Vector(0, 0, 0), Vector(0, 0, 1), 12.5), math.radians(80.6), math.radians(99.4)), False)
sketch2.addGeometry(Part.LineSegment(Vector(-2, 12.4, 0), Vector(-2, 10.3, 0)), False)
sketch2.addGeometry(Part.ArcOfCircle(Part.Circle(Vector(0, 0, 0), Vector(0, 0, 1), 10.5), math.radians(101.26), math.radians(114.74)), False)
sketch2.addGeometry(Part.LineSegment(Vector(-4.4, 9.5, 0), Vector(-5.6, 11.2, 0)), False)
sketch2.addGeometry(Part.ArcOfCircle(Part.Circle(Vector(0, 0, 0), Vector(0, 0, 1), 12.5), math.radians(116.6), math.radians(135.4)), False)
sketch2.addGeometry(Part.LineSegment(Vector(-8.9, 8.8, 0), Vector(-7.7, 7.1, 0)), False)
sketch2.addGeometry(Part.ArcOfCircle(Part.Circle(Vector(0, 0, 0), Vector(0, 0, 1), 10.5), math.radians(137.26), math.radians(150.74)), False)
sketch2.addGeometry(Part.LineSegment(Vector(-9.2, 5.1, 0), Vector(-11.1, 5.8, 0)), False)
sketch2.addGeometry(Part.ArcOfCircle(Part.Circle(Vector(0, 0, 0), Vector(0, 0, 1), 12.6), math.radians(152.6), math.radians(171.4)), False)
sketch2.addGeometry(Part.LineSegment(Vector(-12.4, 1.9, 0), Vector(-10.4, 1.2, 0)), False)
sketch2.addGeometry(Part.ArcOfCircle(Part.Circle(Vector(0, 0, 0), Vector(0, 0, 1), 10.5), math.radians(173.26), math.radians(186.74)), False)
sketch2.addGeometry(Part.LineSegment(Vector(-10.4, -1.2, 0), Vector(-12.4, -1.9, 0)), False)
sketch2.addGeometry(Part.ArcOfCircle(Part.Circle(Vector(0, 0, 0), Vector(0, 0, 1), 12.6), math.radians(-171.4), math.radians(-152.6)), False)
sketch2.addGeometry(Part.LineSegment(Vector(-11.1, -5.8, 0), Vector(-9.2, -5.1, 0)), False)
sketch2.addGeometry(Part.ArcOfCircle(Part.Circle(Vector(0, 0, 0), Vector(0, 0, 1), 10.5), math.radians(-150.74), math.radians(-137.26)), False)
sketch2.addGeometry(Part.LineSegment(Vector(-7.7, -7.1, 0), Vector(-8.9, -8.8, 0)), False)
sketch2.addGeometry(Part.ArcOfCircle(Part.Circle(Vector(0, 0, 0), Vector(0, 0, 1), 12.5), math.radians(-135.4), math.radians(-116.6)), False)
sketch2.addGeometry(Part.LineSegment(Vector(-5.6, -11.2, 0), Vector(-4.4, -9.5, 0)), False)
sketch2.addGeometry(Part.ArcOfCircle(Part.Circle(Vector(0, 0, 0), Vector(0, 0, 1), 10.5), math.radians(-114.74), math.radians(-101.26)), False)
sketch2.addGeometry(Part.LineSegment(Vector(-2, -10.3, 0), Vector(-2, -12.4, 0)), False)
sketch2.addGeometry(Part.ArcOfCircle(Part.Circle(Vector(0, 0, 0), Vector(0, 0, 1), 12.5), math.radians(-99.4), math.radians(-80.6)), False)
sketch2.addGeometry(Part.LineSegment(Vector(2, -12.4, 0), Vector(2, -10.3, 0)), False)
sketch2.addGeometry(Part.ArcOfCircle(Part.Circle(Vector(0, 0, 0), Vector(0, 0, 1), 10.5), math.radians(-78.74), math.radians(-65.26)), False)
sketch2.addGeometry(Part.LineSegment(Vector(4.4, -9.5, 0), Vector(5.6, -11.2, 0)), False)
sketch2.addGeometry(Part.ArcOfCircle(Part.Circle(Vector(0, 0, 0), Vector(0, 0, 1), 12.5), math.radians(-63.4), math.radians(-44.6)), False)
sketch2.addGeometry(Part.LineSegment(Vector(8.9, -8.8, 0), Vector(7.7, -7.1, 0)), False)
sketch2.addGeometry(Part.ArcOfCircle(Part.Circle(Vector(0, 0, 0), Vector(0, 0, 1), 10.5), math.radians(-42.74), math.radians(-29.26)), False)
sketch2.addGeometry(Part.LineSegment(Vector(9.2, -5.1, 0), Vector(11.1, -5.8, 0)), False)
sketch2.addGeometry(Part.ArcOfCircle(Part.Circle(Vector(0, 0, 0), Vector(0, 0, 1), 12.6), math.radians(-27.4), math.radians(-8.6)), False)
sketch2.addGeometry(Part.LineSegment(Vector(12.4, -1.9, 0), Vector(10.4, -1.2, 0)), False)
sketch2.addConstraint(Sketcher.Constraint("Tangent", 0, 2, 1, 1))
sketch2.addConstraint(Sketcher.Constraint("Coincident", 1, 2, 2, 1))
sketch2.addConstraint(Sketcher.Constraint("Coincident", 2, 2, 3, 1))
sketch2.addConstraint(Sketcher.Constraint("Coincident", 3, 2, 4, 1))
sketch2.addConstraint(Sketcher.Constraint("Coincident", 4, 2, 5, 1))
sketch2.addConstraint(Sketcher.Constraint("Coincident", 5, 2, 6, 1))
sketch2.addConstraint(Sketcher.Constraint("Coincident", 6, 2, 7, 1))
sketch2.addConstraint(Sketcher.Constraint("Coincident", 7, 2, 8, 1))
sketch2.addConstraint(Sketcher.Constraint("Coincident", 8, 2, 9, 1))
sketch2.addConstraint(Sketcher.Constraint("Coincident", 9, 2, 10, 1))
sketch2.addConstraint(Sketcher.Constraint("Coincident", 10, 2, 11, 1))
sketch2.addConstraint(Sketcher.Constraint("Coincident", 11, 2, 12, 1))
sketch2.addConstraint(Sketcher.Constraint("Coincident", 12, 2, 13, 1))
sketch2.addConstraint(Sketcher.Constraint("Coincident", 13, 2, 14, 1))
sketch2.addConstraint(Sketcher.Constraint("Coincident", 14, 2, 15, 1))
sketch2.addConstraint(Sketcher.Constraint("Coincident", 15, 2, 16, 1))
sketch2.addConstraint(Sketcher.Constraint("Coincident", 16, 2, 17, 1))
sketch2.addConstraint(Sketcher.Constraint("Coincident", 17, 2, 18, 1))
sketch2.addConstraint(Sketcher.Constraint("Coincident", 18, 2, 19, 1))
sketch2.addConstraint(Sketcher.Constraint("Coincident", 19, 2, 20, 1))
sketch2.addConstraint(Sketcher.Constraint("Coincident", 20, 2, 21, 1))
sketch2.addConstraint(Sketcher.Constraint("Coincident", 21, 2, 22, 1))
sketch2.addConstraint(Sketcher.Constraint("Coincident", 22, 2, 23, 1))
sketch2.addConstraint(Sketcher.Constraint("Coincident", 23, 2, 24, 1))
sketch2.addConstraint(Sketcher.Constraint("Coincident", 24, 2, 25, 1))
sketch2.addConstraint(Sketcher.Constraint("Coincident", 25, 2, 26, 1))
sketch2.addConstraint(Sketcher.Constraint("Coincident", 26, 2, 27, 1))
sketch2.addConstraint(Sketcher.Constraint("Coincident", 27, 2, 28, 1))
sketch2.addConstraint(Sketcher.Constraint("Coincident", 28, 2, 29, 1))
sketch2.addConstraint(Sketcher.Constraint("Coincident", 29, 2, 30, 1))
sketch2.addConstraint(Sketcher.Constraint("Coincident", 30, 2, 31, 1))
sketch2.addConstraint(Sketcher.Constraint("Coincident", 31, 2, 32, 1))
sketch2.addConstraint(Sketcher.Constraint("Coincident", 32, 2, 33, 1))
sketch2.addConstraint(Sketcher.Constraint("Coincident", 33, 2, 34, 1))
sketch2.addConstraint(Sketcher.Constraint("Coincident", 34, 2, 35, 1))
sketch2.addConstraint(Sketcher.Constraint("Coincident", 35, 2, 36, 1))
sketch2.addConstraint(Sketcher.Constraint("Coincident", 36, 2, 37, 1))
sketch2.addConstraint(Sketcher.Constraint("Coincident", 37, 2, 38, 1))
sketch2.addConstraint(Sketcher.Constraint("Coincident", 38, 2, 39, 1))
sketch2.addConstraint(Sketcher.Constraint("Coincident", 39, 2, 40, 1))
sketch2.addConstraint(Sketcher.Constraint("Coincident", 40, 2, 0, 1))
sketch2.addConstraint(Sketcher.Constraint("Vertical", 10))
sketch2.addConstraint(Sketcher.Constraint("Vertical", 12))
sketch2.addConstraint(Sketcher.Constraint("Vertical", 30))
sketch2.addConstraint(Sketcher.Constraint("Vertical", 32))
sketch2.addConstraint(Sketcher.Constraint("Coincident", 0, 3, -1, 1))
sketch2.addConstraint(Sketcher.Constraint("Coincident", 3, 3, -1, 1))
sketch2.addConstraint(Sketcher.Constraint("Coincident", 5, 3, -1, 1))
sketch2.addConstraint(Sketcher.Constraint("Coincident", 7, 3, -1, 1))
sketch2.addConstraint(Sketcher.Constraint("Coincident", 9, 3, -1, 1))
sketch2.addConstraint(Sketcher.Constraint("Coincident", 11, 3, -1, 1))
sketch2.addConstraint(Sketcher.Constraint("Coincident", 13, 3, -1, 1))
sketch2.addConstraint(Sketcher.Constraint("Coincident", 15, 3, -1, 1))
sketch2.addConstraint(Sketcher.Constraint("Coincident", 17, 3, -1, 1))
sketch2.addConstraint(Sketcher.Constraint("Coincident", 19, 3, -1, 1))
sketch2.addConstraint(Sketcher.Constraint("Coincident", 21, 3, -1, 1))
sketch2.addConstraint(Sketcher.Constraint("Coincident", 23, 3, -1, 1))
sketch2.addConstraint(Sketcher.Constraint("Coincident", 25, 3, -1, 1))
sketch2.addConstraint(Sketcher.Constraint("Coincident", 27, 3, -1, 1))
sketch2.addConstraint(Sketcher.Constraint("Coincident", 29, 3, -1, 1))
sketch2.addConstraint(Sketcher.Constraint("Coincident", 31, 3, -1, 1))
sketch2.addConstraint(Sketcher.Constraint("Coincident", 33, 3, -1, 1))
sketch2.addConstraint(Sketcher.Constraint("Coincident", 35, 3, -1, 1))
sketch2.addConstraint(Sketcher.Constraint("Coincident", 37, 3, -1, 1))
sketch2.addConstraint(Sketcher.Constraint("Coincident", 39, 3, -1, 1))
sketch2.addConstraint(Sketcher.Constraint("Equal", 0, 1))
sketch2.addConstraint(Sketcher.Constraint("Equal", 1, 5))
sketch2.addConstraint(Sketcher.Constraint("Equal", 3, 7))
sketch2.addConstraint(Sketcher.Constraint("Equal", 5, 9))
sketch2.addConstraint(Sketcher.Constraint("Equal", 7, 11))
sketch2.addConstraint(Sketcher.Constraint("Equal", 9, 13))
sketch2.addConstraint(Sketcher.Constraint("Equal", 11, 15))
sketch2.addConstraint(Sketcher.Constraint("Equal", 13, 17))
sketch2.addConstraint(Sketcher.Constraint("Equal", 15, 19))
sketch2.addConstraint(Sketcher.Constraint("Equal", 17, 21))
sketch2.addConstraint(Sketcher.Constraint("Equal", 19, 23))
sketch2.addConstraint(Sketcher.Constraint("Equal", 21, 25))
sketch2.addConstraint(Sketcher.Constraint("Equal", 23, 27))
sketch2.addConstraint(Sketcher.Constraint("Equal", 25, 29))
sketch2.addConstraint(Sketcher.Constraint("Equal", 27, 31))
sketch2.addConstraint(Sketcher.Constraint("Equal", 29, 33))
sketch2.addConstraint(Sketcher.Constraint("Equal", 31, 35))
sketch2.addConstraint(Sketcher.Constraint("Equal", 33, 37))
sketch2.addConstraint(Sketcher.Constraint("Equal", 35, 39))
sketch2.addConstraint(Sketcher.Constraint("PointOnObject", 0, 2, -1))
sketch2.addConstraint(Sketcher.Constraint("Parallel", 2, 4))
sketch2.addConstraint(Sketcher.Constraint("Parallel", 6, 8))
sketch2.addConstraint(Sketcher.Constraint("Parallel", 14, 16))
sketch2.addConstraint(Sketcher.Constraint("Parallel", 18, 20))
sketch2.addConstraint(Sketcher.Constraint("Parallel", 4, 22))
sketch2.addConstraint(Sketcher.Constraint("Parallel", 22, 24))
sketch2.addConstraint(Sketcher.Constraint("Parallel", 8, 26))
sketch2.addConstraint(Sketcher.Constraint("Parallel", 26, 28))
sketch2.addConstraint(Sketcher.Constraint("Parallel", 16, 34))
sketch2.addConstraint(Sketcher.Constraint("Parallel", 34, 36))
sketch2.addConstraint(Sketcher.Constraint("Parallel", 20, 38))
sketch2.addConstraint(Sketcher.Constraint("Parallel", 38, 40))
sketch2.addConstraint(Sketcher.Constraint("Horizontal", 10, 2, 11, 2))
sketch2.addConstraint(Sketcher.Constraint("Horizontal", 8, 2, 13, 2))
sketch2.addConstraint(Sketcher.Constraint("Horizontal", 7, 2, 14, 2))
sketch2.addConstraint(Sketcher.Constraint("Horizontal", 6, 2, 15, 2))
sketch2.addConstraint(Sketcher.Constraint("Horizontal", 4, 2, 17, 2))
sketch2.addConstraint(Sketcher.Constraint("Horizontal", 3, 2, 18, 2))
sketch2.addConstraint(Sketcher.Constraint("Horizontal", 2, 2, 19, 2))
sketch2.addConstraint(Sketcher.Constraint("Horizontal", 30, 2, 31, 2))
sketch2.addConstraint(Sketcher.Constraint("Horizontal", 28, 2, 33, 2))
sketch2.addConstraint(Sketcher.Constraint("Horizontal", 26, 2, 35, 2))
sketch2.addConstraint(Sketcher.Constraint("Horizontal", 24, 2, 37, 2))
sketch2.addConstraint(Sketcher.Constraint("Horizontal", 22, 2, 39, 2))
sketch2.addConstraint(Sketcher.Constraint("Vertical", 20, 2, 21, 2))
sketch2.addConstraint(Sketcher.Constraint("Vertical", 18, 2, 23, 2))
sketch2.addConstraint(Sketcher.Constraint("Vertical", 16, 2, 25, 2))
sketch2.addConstraint(Sketcher.Constraint("Vertical", 14, 2, 27, 2))
sketch2.addConstraint(Sketcher.Constraint("Vertical", 12, 2, 29, 2))
sketch2.addConstraint(Sketcher.Constraint("Equal", 2, 4))
sketch2.addConstraint(Sketcher.Constraint("Equal", 4, 6))
sketch2.addConstraint(Sketcher.Constraint("Equal", 6, 8))
sketch2.addConstraint(Sketcher.Constraint("Radius", 0, Q("10.5 mm")))
sketch2.addConstraint(Sketcher.Constraint("Angle", 2, Q("18 deg")))
sketch2.addConstraint(Sketcher.Constraint("Angle", 6, Q("54 deg")))
sketch2.addConstraint(Sketcher.Constraint("Radius", 3, Q("12.55 mm")))
sketch2.addConstraint(Sketcher.Constraint("DistanceX", -1, 1, 9, 2, Q("2.05 mm")))
sketch2.addConstraint(Sketcher.Constraint("Distance", 2, Q("2.083501 mm")))
sketch2.setExpression("Constraints[117]", "Params.sketch2_radius")
sketch2.setExpression("Constraints[120]", "Params.sketch2_radius2")
pocket1 = body.newObject("PartDesign::Pocket", "Pocket")
pocket1.Profile = sketch2
pocket1.setExpression("Length", "Params.pocket1_length")
pocket1.Midplane = True

doc.recompute()
